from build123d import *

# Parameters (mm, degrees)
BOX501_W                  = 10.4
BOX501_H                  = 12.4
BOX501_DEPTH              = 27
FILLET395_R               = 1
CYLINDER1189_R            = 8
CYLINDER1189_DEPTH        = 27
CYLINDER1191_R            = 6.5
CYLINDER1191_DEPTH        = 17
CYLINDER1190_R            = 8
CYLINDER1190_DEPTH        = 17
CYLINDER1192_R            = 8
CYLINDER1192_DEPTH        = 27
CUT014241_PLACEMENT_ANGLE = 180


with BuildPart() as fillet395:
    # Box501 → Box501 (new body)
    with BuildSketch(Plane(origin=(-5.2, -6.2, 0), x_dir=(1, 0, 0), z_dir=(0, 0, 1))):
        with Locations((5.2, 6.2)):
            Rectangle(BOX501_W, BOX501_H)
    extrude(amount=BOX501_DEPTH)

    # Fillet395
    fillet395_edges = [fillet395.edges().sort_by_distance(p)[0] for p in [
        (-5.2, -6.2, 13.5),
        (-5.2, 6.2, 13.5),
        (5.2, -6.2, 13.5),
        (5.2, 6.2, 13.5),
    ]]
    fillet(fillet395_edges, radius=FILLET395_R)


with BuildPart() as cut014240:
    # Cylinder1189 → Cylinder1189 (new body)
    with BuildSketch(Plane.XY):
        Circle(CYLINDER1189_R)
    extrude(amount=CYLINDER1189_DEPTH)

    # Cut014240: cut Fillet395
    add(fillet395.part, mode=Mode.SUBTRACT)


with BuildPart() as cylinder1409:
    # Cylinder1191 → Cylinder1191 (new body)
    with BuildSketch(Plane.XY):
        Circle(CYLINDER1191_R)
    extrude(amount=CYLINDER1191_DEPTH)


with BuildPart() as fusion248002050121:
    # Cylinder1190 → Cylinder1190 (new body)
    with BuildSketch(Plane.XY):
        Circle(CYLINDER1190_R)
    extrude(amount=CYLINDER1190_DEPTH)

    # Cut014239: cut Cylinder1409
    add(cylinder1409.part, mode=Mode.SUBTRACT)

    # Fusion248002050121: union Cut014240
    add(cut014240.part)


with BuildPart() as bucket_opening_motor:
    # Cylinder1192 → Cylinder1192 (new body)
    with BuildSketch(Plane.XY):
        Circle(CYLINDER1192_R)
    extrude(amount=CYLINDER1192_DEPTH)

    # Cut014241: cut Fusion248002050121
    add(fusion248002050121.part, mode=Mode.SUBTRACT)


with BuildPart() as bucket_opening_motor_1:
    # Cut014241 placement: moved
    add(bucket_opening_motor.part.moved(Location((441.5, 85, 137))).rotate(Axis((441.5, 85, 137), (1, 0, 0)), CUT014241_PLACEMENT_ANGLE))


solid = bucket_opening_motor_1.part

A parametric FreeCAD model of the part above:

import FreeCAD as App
import Part
import Sketcher
Q = App.Units.Quantity


def edges_at(feature, points):
    """Names of the edges that pass closest to the given points."""
    edges = feature.Shape.Edges
    near = lambda p: min(range(len(edges)), key=lambda i: edges[i].distToShape(Part.Vertex(*p))[0])
    return sorted({f"Edge{near(p) + 1}" for p in points})


def add_polygon(sketch, points):
    """Adds a closed chain of lines whose ends are joined by coincident constraints."""
    first, n = sketch.GeometryCount, len(points)
    for a, b in zip(points, points[1:] + points[:1]):
        sketch.addGeometry(Part.LineSegment(App.Vector(*a, 0), App.Vector(*b, 0)), False)
    for i in range(n):
        sketch.addConstraint(Sketcher.Constraint("Coincident", first + i, 2, first + (i + 1) % n, 1))

doc = App.newDocument("Part")
params = doc.addObject("Spreadsheet::Sheet", "Params")
for row, (alias, value) in enumerate([
    ("sketch1_width", "10.4 mm"),
    ("sketch1_height", "12.4 mm"),
    ("pad1_length", "27 mm"),
    ("fillet_radius", "1 mm"),
    ("sketch2_diameter", "16 mm"),
    ("pad2_length", "27 mm"),
    ("sketch3_diameter", "13 mm"),
    ("pad3_length", "17 mm"),
    ("sketch4_diameter", "16 mm"),
    ("pad4_length", "17 mm"),
    ("sketch5_diameter", "16 mm"),
    ("pad5_length", "27 mm"),
], start=1):
    params.set(f"A{row}", alias)
    params.set(f"B{row}", "=" + value)
    params.setAlias(f"B{row}", alias)

body = doc.addObject("PartDesign::Body", "Body")

# Sketch on XY plane
sketch1 = doc.addObject("Sketcher::SketchObject", "Sketch")
body.addObject(sketch1)
sketch1.AttachmentSupport = (doc.XY_Plane, [""])
sketch1.MapMode = "FlatFace"
add_polygon(sketch1, [(-5.2, 6.2), (-5.2, -6.2), (5.2, -6.2), (5.2, 6.2)])  # lines 0-3
sketch1.addConstraint([
    Sketcher.Constraint("Vertical", 0),
    Sketcher.Constraint("Horizontal", 1),
    Sketcher.Constraint("Vertical", 2),
    Sketcher.Constraint("Horizontal", 3),
    Sketcher.Constraint("Symmetric", 0, 2, 2, 2, -1, 1),
    Sketcher.Constraint("DistanceX", 1, 1, 1, 2, Q("10.4 mm")),
    Sketcher.Constraint("DistanceY", 0, 2, 0, 1, Q("12.4 mm")),
])
sketch1.setExpression("Constraints[9]", "Params.sketch1_width")
sketch1.setExpression("Constraints[10]", "Params.sketch1_height")
pad1 = doc.addObject("PartDesign::Pad", "Pad")
body.addObject(pad1)
pad1.Profile = sketch1
pad1.setExpression("Length", "Params.pad1_length")
doc.recompute()

fillet = doc.addObject("PartDesign::Fillet", "Fillet")
body.addObject(fillet)
fillet.Base = (pad1, edges_at(pad1, [
    (-5.2, -6.2, 13.5),
    (-5.2, 6.2, 13.5),
    (5.2, -6.2, 13.5),
    (5.2, 6.2, 13.5),
]))
fillet.setExpression("Radius", "Params.fillet_radius")
body2 = doc.addObject("PartDesign::Body", "Body001")

# Sketch on XY plane
sketch2 = doc.addObject("Sketcher::SketchObject", "Sketch001")
body2.addObject(sketch2)
sketch2.AttachmentSupport = (doc.getObject("XY_Plane001"), [""])
sketch2.MapMode = "FlatFace"
sketch2.addGeometry(Part.Circle(App.Vector(0, 0, 0), App.Vector(0, 0, 1), 8), False)
sketch2.addConstraint([
    Sketcher.Constraint("Coincident", 0, 3, -1, 1),
    Sketcher.Constraint("Diameter", 0, Q("16 mm")),
])
sketch2.setExpression("Constraints[1]", "Params.sketch2_diameter")
pad2 = doc.addObject("PartDesign::Pad", "Pad001")
body2.addObject(pad2)
pad2.Profile = sketch2
pad2.setExpression("Length", "Params.pad2_length")
doc.recompute()

boolean = doc.addObject("PartDesign::Boolean", "Boolean")
body2.addObject(boolean)
boolean.Type = "Cut"
boolean.addObjects([body])
body3 = doc.addObject("PartDesign::Body", "Body002")

# Sketch on XY plane
sketch3 = doc.addObject("Sketcher::SketchObject", "Sketch002")
body3.addObject(sketch3)
sketch3.AttachmentSupport = (doc.getObject("XY_Plane002"), [""])
sketch3.MapMode = "FlatFace"
sketch3.addGeometry(Part.Circle(App.Vector(0, 0, 0), App.Vector(0, 0, 1), 6.5), False)
sketch3.addConstraint([
    Sketcher.Constraint("Coincident", 0, 3, -1, 1),
    Sketcher.Constraint("Diameter", 0, Q("13 mm")),
])
sketch3.setExpression("Constraints[1]", "Params.sketch3_diameter")
pad3 = doc.addObject("PartDesign::Pad", "Pad002")
body3.addObject(pad3)
pad3.Profile = sketch3
pad3.setExpression("Length", "Params.pad3_length")
body4 = doc.addObject("PartDesign::Body", "Body003")

# Sketch on XY plane
sketch4 = doc.addObject("Sketcher::SketchObject", "Sketch003")
body4.addObject(sketch4)
sketch4.AttachmentSupport = (doc.getObject("XY_Plane003"), [""])
sketch4.MapMode = "FlatFace"
sketch4.addGeometry(Part.Circle(App.Vector(0, 0, 0), App.Vector(0, 0, 1), 8), False)
sketch4.addConstraint([
    Sketcher.Constraint("Coincident", 0, 3, -1, 1),
    Sketcher.Constraint("Diameter", 0, Q("16 mm")),
])
sketch4.setExpression("Constraints[1]", "Params.sketch4_diameter")
pad4 = doc.addObject("PartDesign::Pad", "Pad003")
body4.addObject(pad4)
pad4.Profile = sketch4
pad4.setExpression("Length", "Params.pad4_length")
doc.recompute()

boolean2 = doc.addObject("PartDesign::Boolean", "Boolean001")
body4.addObject(boolean2)
boolean2.Type = "Cut"
boolean2.addObjects([body3])
doc.recompute()

boolean3 = doc.addObject("PartDesign::Boolean", "Boolean002")
body4.addObject(boolean3)
boolean3.Type = "Fuse"
boolean3.addObjects([body2])
body5 = doc.addObject("PartDesign::Body", "Body004")

# Sketch on XY plane
sketch5 = doc.addObject("Sketcher::SketchObject", "Sketch004")
body5.addObject(sketch5)
sketch5.AttachmentSupport = (doc.getObject("XY_Plane004"), [""])
sketch5.MapMode = "FlatFace"
sketch5.addGeometry(Part.Circle(App.Vector(0, 0, 0), App.Vector(0, 0, 1), 8), False)
sketch5.addConstraint([
    Sketcher.Constraint("Coincident", 0, 3, -1, 1),
    Sketcher.Constraint("Diameter", 0, Q("16 mm")),
])
sketch5.setExpression("Constraints[1]", "Params.sketch5_diameter")
pad5 = doc.addObject("PartDesign::Pad", "Pad004")
body5.addObject(pad5)
pad5.Profile = sketch5
pad5.setExpression("Length", "Params.pad5_length")
doc.recompute()

boolean4 = doc.addObject("PartDesign::Boolean", "Boolean003")
body5.addObject(boolean4)
boolean4.Type = "Cut"
boolean4.addObjects([body4])
body6 = doc.addObject("PartDesign::Body", "Body005")
doc.recompute()

body5.Placement = App.Placement(App.Vector(441.5, 85, 137), App.Rotation(App.Vector(1, 0, 0), 180))
boolean5 = doc.addObject("PartDesign::Boolean", "Boolean004")
body6.addObject(boolean5)
boolean5.Type = "Fuse"
boolean5.addObjects([body5])

doc.recompute()
